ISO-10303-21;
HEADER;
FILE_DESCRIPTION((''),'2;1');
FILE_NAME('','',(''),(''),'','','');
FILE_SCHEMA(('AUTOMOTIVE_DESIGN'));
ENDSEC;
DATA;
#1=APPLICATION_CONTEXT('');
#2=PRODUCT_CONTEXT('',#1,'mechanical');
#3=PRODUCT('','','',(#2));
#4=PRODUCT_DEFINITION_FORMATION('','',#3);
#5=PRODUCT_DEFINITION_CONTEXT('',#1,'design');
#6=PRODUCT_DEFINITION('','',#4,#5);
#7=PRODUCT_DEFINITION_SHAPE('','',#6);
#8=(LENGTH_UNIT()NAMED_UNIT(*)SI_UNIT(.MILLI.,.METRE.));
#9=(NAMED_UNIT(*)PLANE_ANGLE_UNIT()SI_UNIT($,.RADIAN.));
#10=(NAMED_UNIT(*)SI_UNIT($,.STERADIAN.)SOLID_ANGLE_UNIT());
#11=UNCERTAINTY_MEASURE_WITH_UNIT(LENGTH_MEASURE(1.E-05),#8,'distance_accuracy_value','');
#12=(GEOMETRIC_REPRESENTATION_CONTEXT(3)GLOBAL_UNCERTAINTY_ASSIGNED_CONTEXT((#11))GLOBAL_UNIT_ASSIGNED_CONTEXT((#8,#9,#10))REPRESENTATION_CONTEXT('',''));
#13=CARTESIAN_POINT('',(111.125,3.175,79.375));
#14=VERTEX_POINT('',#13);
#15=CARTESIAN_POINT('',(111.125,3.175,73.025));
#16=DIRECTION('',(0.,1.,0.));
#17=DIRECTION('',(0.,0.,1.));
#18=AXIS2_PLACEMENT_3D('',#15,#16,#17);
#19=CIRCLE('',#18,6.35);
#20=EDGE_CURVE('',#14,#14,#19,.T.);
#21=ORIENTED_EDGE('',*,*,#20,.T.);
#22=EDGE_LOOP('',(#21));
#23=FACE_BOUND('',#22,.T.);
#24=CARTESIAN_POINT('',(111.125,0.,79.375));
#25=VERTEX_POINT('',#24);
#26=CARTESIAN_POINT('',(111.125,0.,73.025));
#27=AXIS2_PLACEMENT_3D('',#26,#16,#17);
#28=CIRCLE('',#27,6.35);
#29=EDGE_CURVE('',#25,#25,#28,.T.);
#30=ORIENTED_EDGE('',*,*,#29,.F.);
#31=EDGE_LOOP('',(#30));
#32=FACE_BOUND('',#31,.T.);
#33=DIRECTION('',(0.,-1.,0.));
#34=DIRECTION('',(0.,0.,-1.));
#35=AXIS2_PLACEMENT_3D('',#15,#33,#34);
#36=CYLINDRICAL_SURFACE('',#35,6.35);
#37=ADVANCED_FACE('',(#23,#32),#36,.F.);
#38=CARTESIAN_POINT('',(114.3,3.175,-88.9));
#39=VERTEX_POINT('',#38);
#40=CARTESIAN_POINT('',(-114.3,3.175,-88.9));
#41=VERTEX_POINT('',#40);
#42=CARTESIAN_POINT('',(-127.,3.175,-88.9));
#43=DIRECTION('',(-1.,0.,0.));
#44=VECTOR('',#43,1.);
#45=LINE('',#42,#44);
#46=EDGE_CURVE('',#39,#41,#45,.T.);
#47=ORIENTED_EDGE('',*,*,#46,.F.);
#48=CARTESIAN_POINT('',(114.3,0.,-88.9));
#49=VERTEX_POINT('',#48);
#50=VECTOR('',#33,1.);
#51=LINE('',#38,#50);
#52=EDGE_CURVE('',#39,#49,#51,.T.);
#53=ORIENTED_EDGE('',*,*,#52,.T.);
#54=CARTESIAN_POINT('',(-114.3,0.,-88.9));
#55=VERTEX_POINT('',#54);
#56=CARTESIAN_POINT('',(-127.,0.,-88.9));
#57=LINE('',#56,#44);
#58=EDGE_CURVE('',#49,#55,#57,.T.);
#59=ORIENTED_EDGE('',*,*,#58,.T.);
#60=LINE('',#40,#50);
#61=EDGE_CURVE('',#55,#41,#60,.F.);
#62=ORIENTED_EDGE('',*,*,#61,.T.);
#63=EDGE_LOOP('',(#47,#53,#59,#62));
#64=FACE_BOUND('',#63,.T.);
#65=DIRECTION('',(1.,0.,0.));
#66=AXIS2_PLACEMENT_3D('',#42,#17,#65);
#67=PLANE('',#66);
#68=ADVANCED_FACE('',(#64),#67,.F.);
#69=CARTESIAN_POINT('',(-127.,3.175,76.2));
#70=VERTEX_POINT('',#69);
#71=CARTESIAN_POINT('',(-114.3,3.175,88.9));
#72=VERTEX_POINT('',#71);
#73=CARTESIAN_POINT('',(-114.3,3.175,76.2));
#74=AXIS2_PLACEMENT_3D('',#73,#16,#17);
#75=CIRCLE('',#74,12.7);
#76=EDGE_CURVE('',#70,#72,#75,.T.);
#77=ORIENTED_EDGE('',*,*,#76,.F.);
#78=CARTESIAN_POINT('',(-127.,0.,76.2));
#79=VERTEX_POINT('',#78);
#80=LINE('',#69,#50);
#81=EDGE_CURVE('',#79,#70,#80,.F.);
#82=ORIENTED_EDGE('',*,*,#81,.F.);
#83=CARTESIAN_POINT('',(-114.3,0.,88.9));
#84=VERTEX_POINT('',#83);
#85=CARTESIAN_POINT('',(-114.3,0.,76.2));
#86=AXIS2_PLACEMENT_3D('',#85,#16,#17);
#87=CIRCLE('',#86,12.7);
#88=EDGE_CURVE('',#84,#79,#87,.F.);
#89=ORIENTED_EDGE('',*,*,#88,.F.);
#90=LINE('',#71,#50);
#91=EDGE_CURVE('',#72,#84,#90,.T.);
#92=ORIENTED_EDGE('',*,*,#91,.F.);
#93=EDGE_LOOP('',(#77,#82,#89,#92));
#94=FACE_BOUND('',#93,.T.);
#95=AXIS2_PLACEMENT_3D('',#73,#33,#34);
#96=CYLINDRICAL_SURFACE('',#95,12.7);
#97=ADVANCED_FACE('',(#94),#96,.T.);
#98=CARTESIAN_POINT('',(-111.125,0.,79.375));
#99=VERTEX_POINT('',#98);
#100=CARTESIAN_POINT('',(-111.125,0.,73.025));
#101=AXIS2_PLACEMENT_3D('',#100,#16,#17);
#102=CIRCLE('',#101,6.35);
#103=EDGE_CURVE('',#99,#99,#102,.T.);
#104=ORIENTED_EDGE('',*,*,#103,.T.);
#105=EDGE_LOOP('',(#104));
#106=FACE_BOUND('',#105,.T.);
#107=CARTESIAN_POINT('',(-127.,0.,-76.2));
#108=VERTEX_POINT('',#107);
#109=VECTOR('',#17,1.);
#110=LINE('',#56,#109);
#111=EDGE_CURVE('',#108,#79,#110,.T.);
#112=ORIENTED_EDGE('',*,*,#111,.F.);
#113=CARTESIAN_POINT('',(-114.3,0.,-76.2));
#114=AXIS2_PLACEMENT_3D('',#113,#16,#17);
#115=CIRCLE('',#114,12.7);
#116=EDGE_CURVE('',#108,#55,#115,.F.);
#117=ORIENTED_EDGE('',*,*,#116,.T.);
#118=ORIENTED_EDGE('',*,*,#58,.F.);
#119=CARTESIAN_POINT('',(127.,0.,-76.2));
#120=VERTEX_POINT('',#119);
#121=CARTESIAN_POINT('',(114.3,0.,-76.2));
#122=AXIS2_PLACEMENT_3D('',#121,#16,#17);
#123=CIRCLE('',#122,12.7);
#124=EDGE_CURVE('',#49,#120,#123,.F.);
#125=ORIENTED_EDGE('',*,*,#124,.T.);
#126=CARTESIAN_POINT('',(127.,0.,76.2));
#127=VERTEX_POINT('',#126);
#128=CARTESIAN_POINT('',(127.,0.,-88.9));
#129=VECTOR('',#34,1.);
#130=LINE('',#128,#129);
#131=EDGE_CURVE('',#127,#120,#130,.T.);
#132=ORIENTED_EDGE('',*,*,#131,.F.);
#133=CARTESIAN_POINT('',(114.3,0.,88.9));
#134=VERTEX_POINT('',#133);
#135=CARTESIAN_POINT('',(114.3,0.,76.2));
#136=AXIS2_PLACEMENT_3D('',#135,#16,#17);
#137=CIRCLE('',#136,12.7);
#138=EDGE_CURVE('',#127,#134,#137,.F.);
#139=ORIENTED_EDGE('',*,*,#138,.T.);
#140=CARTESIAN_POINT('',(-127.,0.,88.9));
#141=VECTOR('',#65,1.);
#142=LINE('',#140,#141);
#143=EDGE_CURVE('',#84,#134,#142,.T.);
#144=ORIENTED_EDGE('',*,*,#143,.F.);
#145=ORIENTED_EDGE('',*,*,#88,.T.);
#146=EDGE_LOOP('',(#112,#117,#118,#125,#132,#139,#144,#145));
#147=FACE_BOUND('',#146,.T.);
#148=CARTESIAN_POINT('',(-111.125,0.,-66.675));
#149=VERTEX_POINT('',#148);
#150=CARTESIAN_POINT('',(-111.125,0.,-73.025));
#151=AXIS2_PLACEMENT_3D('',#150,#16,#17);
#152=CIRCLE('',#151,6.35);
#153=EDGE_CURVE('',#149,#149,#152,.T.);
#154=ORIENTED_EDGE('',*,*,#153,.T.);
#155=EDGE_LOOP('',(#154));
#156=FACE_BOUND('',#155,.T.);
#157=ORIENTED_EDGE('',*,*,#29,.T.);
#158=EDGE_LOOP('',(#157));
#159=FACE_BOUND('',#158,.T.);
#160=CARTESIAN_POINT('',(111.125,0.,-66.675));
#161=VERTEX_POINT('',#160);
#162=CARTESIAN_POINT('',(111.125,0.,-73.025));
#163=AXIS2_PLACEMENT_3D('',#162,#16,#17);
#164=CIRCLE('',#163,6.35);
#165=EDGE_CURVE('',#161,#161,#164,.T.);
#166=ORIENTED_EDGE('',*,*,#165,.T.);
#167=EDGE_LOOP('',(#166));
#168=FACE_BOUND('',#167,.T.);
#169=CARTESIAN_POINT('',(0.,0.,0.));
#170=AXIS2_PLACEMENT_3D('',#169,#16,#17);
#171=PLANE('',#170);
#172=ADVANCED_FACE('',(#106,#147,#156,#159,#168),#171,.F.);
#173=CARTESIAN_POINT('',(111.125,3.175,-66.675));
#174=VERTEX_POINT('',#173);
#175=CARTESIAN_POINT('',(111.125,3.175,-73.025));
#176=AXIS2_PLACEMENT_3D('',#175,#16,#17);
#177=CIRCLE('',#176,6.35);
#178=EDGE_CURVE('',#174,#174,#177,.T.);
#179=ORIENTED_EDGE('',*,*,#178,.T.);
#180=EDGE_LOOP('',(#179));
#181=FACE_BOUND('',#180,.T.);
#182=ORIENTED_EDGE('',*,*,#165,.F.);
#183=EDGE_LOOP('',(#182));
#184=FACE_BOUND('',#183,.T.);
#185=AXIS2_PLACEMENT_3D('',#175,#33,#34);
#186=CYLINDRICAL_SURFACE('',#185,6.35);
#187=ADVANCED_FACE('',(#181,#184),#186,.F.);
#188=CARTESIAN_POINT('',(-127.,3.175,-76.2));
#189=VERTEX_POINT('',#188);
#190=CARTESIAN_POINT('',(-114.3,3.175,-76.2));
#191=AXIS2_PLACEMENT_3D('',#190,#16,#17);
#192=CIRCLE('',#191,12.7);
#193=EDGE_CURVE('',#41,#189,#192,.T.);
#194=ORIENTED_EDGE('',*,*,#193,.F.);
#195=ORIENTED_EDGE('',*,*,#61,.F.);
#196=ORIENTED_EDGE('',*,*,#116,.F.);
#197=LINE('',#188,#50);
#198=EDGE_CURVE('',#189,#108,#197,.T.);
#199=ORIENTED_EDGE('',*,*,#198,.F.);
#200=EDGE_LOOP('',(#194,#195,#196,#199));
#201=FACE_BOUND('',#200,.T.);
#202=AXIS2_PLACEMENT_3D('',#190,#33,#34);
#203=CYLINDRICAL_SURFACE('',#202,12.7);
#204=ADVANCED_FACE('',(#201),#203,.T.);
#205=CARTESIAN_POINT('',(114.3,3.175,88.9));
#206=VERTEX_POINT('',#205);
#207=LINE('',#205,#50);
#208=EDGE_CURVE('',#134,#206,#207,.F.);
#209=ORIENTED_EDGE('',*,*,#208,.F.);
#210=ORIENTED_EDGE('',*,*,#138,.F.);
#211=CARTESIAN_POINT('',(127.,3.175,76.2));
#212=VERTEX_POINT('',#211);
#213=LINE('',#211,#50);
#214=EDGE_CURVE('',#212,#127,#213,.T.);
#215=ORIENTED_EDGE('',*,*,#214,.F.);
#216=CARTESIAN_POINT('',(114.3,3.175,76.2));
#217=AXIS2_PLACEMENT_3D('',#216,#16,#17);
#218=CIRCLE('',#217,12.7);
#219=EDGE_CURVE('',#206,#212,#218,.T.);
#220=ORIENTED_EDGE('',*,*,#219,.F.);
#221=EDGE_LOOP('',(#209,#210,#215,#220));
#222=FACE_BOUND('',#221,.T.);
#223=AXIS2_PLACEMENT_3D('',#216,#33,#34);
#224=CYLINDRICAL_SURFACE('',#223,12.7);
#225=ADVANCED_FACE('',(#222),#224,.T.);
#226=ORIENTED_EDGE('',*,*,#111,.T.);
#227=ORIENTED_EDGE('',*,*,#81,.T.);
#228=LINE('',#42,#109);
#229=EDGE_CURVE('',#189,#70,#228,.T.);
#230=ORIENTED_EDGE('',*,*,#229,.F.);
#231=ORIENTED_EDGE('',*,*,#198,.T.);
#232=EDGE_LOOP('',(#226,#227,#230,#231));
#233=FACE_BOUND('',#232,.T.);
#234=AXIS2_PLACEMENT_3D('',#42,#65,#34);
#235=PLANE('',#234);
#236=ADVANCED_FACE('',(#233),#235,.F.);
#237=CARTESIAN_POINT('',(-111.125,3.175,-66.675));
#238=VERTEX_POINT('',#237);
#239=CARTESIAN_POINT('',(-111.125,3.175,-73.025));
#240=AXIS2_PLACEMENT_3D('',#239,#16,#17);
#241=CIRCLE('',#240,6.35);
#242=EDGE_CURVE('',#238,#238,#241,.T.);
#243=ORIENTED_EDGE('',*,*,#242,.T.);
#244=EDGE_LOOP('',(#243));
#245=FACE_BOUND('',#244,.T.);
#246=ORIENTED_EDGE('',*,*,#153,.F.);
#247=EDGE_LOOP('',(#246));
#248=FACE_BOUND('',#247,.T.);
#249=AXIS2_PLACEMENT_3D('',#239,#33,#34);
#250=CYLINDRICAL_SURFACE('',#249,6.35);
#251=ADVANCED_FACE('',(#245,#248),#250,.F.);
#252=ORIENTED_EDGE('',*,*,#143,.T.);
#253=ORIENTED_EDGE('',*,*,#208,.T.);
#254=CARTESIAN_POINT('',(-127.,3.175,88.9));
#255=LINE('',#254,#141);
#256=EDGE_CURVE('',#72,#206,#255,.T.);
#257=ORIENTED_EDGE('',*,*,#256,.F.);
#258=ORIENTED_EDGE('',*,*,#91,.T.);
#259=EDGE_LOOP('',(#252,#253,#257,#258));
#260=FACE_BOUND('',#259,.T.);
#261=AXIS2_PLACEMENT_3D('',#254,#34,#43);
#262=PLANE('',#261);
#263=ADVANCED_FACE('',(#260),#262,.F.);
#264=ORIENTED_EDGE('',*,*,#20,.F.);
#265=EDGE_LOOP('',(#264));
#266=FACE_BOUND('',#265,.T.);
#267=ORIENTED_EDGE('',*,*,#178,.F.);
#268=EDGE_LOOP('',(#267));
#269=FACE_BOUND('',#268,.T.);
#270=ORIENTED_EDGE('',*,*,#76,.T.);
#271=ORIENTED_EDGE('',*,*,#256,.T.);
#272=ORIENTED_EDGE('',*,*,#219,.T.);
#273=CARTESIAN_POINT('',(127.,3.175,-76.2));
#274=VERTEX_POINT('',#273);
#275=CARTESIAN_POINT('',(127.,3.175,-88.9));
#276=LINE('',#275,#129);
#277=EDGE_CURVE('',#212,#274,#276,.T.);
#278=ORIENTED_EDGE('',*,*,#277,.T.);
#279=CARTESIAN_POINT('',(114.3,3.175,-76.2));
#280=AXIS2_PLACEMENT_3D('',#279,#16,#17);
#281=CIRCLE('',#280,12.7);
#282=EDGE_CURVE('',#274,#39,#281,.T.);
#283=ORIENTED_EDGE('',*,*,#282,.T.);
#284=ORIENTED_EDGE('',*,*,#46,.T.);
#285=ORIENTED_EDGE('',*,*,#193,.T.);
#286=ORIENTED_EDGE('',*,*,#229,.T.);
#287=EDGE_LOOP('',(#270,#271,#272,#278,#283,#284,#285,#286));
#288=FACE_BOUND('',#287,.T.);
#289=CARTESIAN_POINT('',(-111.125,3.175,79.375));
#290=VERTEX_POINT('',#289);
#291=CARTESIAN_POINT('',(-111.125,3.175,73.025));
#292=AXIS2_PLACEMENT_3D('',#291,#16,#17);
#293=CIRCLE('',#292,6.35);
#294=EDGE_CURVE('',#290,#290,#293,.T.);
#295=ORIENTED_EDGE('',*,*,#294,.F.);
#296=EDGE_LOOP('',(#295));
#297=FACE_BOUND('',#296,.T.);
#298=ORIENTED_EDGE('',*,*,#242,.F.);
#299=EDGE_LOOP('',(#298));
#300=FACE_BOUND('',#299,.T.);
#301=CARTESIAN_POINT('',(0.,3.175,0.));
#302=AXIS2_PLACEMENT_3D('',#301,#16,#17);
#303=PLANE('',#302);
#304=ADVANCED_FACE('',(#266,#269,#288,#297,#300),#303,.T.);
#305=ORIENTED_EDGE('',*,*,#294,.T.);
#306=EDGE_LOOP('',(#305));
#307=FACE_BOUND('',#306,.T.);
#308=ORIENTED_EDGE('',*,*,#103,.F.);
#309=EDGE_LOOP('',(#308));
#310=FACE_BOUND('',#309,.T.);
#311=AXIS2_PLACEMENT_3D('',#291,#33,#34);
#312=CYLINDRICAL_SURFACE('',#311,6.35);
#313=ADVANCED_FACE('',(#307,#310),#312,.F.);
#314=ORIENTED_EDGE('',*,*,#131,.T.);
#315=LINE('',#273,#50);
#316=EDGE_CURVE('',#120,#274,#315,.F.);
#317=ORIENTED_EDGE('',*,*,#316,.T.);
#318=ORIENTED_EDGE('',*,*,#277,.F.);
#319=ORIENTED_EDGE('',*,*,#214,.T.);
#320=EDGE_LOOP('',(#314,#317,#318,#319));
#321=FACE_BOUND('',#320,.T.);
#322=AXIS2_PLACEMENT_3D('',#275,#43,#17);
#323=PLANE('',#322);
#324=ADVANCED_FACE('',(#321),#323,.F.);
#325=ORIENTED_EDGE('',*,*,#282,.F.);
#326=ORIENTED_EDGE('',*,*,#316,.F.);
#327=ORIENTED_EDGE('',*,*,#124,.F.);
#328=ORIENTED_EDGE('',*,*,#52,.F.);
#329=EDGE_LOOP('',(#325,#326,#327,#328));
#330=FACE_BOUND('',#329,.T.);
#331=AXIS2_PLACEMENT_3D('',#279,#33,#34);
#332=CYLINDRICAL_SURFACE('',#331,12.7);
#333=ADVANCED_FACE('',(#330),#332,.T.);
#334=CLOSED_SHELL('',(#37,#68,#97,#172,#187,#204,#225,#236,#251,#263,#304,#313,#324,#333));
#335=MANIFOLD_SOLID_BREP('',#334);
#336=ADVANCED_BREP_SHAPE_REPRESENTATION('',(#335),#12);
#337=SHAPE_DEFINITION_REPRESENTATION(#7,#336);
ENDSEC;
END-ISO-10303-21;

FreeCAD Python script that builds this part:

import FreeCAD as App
import Part
import Sketcher

V = App.Vector
Q = App.Units.Quantity


def edges_at(feature, points):
    """Names of the edges that pass closest to the given points."""
    edges = feature.Shape.Edges
    near = lambda p: min(range(len(edges)), key=lambda i: edges[i].distToShape(Part.Vertex(*p))[0])
    return sorted({f"Edge{near(p) + 1}" for p in points})


def add_polygon(sketch, points):
    """Adds a closed chain of lines whose ends are joined by coincident constraints."""
    first, n = sketch.GeometryCount, len(points)
    for a, b in zip(points, points[1:] + points[:1]):
        sketch.addGeometry(Part.LineSegment(App.Vector(*a, 0), App.Vector(*b, 0)), False)
    for i in range(n):
        sketch.addConstraint(Sketcher.Constraint("Coincident", first + i, 2, first + (i + 1) % n, 1))

doc = App.newDocument("Part")
body = doc.addObject("PartDesign::Body", "Body")

sketch1 = body.newObject("Sketcher::SketchObject", "Sketch")
sketch1.AttachmentSupport = (doc.getObject("XZ_Plane"), [""])
sketch1.MapMode = "FlatFace"
add_polygon(sketch1, [(-127, -88.9), (-127, 88.9), (127, 88.9), (127, -88.9)])
sketch1.addGeometry(Part.Circle(V(-111.125, 73.025, 0), V(0, 0, 1), 6.35), False)
sketch1.addGeometry(Part.Circle(V(111.125, 73.025, 0), V(0, 0, 1), 6.35), False)
sketch1.addGeometry(Part.Circle(V(-111.125, -73.025, 0), V(0, 0, 1), 6.35), False)
sketch1.addGeometry(Part.Circle(V(111.125, -73.025, 0), V(0, 0, 1), 6.35), False)
sketch1.addConstraint([
    Sketcher.Constraint("Vertical", 0),
    Sketcher.Constraint("Horizontal", 1),
    Sketcher.Constraint("Vertical", 2),
    Sketcher.Constraint("Horizontal", 3),
    Sketcher.Constraint("Equal", 4, 5),
    Sketcher.Constraint("Equal", 5, 6),
    Sketcher.Constraint("Equal", 6, 7),
    Sketcher.Constraint("Symmetric", 5, 3, 6, 3, -1, 1),
    Sketcher.Constraint("Symmetric", 4, 3, 7, 3, -1, 1),
    Sketcher.Constraint("Symmetric", 0, 2, 2, 2, -1, 1),
    Sketcher.Constraint("Symmetric", 4, 3, 5, 3, -2),
    Sketcher.Constraint("Diameter", 4, Q("0.5 in")),
    Sketcher.Constraint("DistanceX", 1, 1, 1, 2, Q("10 in")),
    Sketcher.Constraint("DistanceY", 0, 1, 0, 2, Q("7 in")),
    Sketcher.Constraint("DistanceX", 4, 3, 5, 3, Q("8.75 in")),
    Sketcher.Constraint("DistanceY", 6, 3, 4, 3, Q("5.75 in")),
])
pad1 = body.newObject("PartDesign::Pad", "Pad")
pad1.Profile = sketch1
pad1.Length = Q("0.125 in")
pad1.Reversed = True
doc.recompute()

fillet = body.newObject("PartDesign::Fillet", "Fillet")
fillet.Base = (pad1, edges_at(pad1, [
    (-127, 1.587, -88.9),
    (127, 1.587, -88.9),
    (127, 1.587, 88.9),
    (-127, 1.587, 88.9),
]))
fillet.Radius = Q("0.5 in")

doc.recompute()
